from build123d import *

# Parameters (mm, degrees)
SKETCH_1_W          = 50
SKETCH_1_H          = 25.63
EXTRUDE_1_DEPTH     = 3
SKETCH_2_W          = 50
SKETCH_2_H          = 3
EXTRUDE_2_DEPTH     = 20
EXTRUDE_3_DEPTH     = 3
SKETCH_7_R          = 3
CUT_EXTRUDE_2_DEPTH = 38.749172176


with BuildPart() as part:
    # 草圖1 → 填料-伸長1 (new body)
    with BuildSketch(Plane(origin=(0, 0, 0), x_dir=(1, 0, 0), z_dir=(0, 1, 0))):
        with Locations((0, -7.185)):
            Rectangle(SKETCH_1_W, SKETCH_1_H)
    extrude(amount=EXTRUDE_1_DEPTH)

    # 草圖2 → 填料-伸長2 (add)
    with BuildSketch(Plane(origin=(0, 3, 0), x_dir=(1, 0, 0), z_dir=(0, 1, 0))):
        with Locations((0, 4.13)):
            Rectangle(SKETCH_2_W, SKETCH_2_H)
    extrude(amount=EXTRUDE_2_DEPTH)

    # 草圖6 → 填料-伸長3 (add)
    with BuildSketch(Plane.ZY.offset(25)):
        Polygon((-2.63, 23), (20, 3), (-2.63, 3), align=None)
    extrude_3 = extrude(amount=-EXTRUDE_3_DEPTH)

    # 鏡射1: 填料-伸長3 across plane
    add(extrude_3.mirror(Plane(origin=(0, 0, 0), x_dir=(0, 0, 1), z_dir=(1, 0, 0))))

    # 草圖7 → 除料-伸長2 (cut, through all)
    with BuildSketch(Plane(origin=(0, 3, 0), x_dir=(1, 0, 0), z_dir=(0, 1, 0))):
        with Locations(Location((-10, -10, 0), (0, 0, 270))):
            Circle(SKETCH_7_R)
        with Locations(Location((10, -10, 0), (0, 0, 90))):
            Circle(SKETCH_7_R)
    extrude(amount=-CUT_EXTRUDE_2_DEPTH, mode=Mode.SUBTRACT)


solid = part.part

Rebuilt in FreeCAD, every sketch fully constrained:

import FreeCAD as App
import Part
import Sketcher
from FreeCAD import Vector
Q = App.Units.Quantity

doc = App.newDocument("Part")
body = doc.addObject("PartDesign::Body", "Body")

# Sketch on XZ plane
sketch1 = body.newObject("Sketcher::SketchObject", "Sketch")
sketch1.AttachmentSupport = (doc.getObject("XZ_Plane"), [""])
sketch1.MapMode = "FlatFace"
sketch1.addGeometry(Part.LineSegment(Vector(-25, -6, 0), Vector(-25, 20, 0)), False)
sketch1.addGeometry(Part.LineSegment(Vector(-25, 20, 0), Vector(25, 20, 0)), False)
sketch1.addGeometry(Part.LineSegment(Vector(25, 20, 0), Vector(25, -6, 0)), False)
sketch1.addGeometry(Part.LineSegment(Vector(25, -6, 0), Vector(-25, -6, 0)), False)
sketch1.addConstraint(Sketcher.Constraint("Coincident", 0, 2, 1, 1))
sketch1.addConstraint(Sketcher.Constraint("Coincident", 1, 2, 2, 1))
sketch1.addConstraint(Sketcher.Constraint("Coincident", 2, 2, 3, 1))
sketch1.addConstraint(Sketcher.Constraint("Coincident", 3, 2, 0, 1))
sketch1.addConstraint(Sketcher.Constraint("Vertical", 0))
sketch1.addConstraint(Sketcher.Constraint("Horizontal", 1))
sketch1.addConstraint(Sketcher.Constraint("Vertical", 2))
sketch1.addConstraint(Sketcher.Constraint("Horizontal", 3))
sketch1.addConstraint(Sketcher.Constraint("DistanceX", 1, 1, 1, 2, Q("50 mm")))
sketch1.addConstraint(Sketcher.Constraint("DistanceX", 0, 2, -1, 1, Q("25 mm")))
sketch1.addConstraint(Sketcher.Constraint("DistanceY", -1, 1, 0, 2, Q("20 mm")))
sketch1.addConstraint(Sketcher.Constraint("DistanceY", 0, 1, 0, 2, Q("25.63 mm")))
pad1 = body.newObject("PartDesign::Pad", "Pad")
pad1.Profile = sketch1
pad1.Length = 3
pad1.Reversed = True

# Sketch on XZ plane
sketch2 = body.newObject("Sketcher::SketchObject", "Sketch001")
sketch2.AttachmentSupport = (doc.getObject("XZ_Plane"), [""])
sketch2.MapMode = "FlatFace"
sketch2.AttachmentOffset = App.Placement(Vector(0, 0, -3), App.Rotation())
sketch2.addGeometry(Part.LineSegment(Vector(-25, -5.6, 0), Vector(-25, -2.6, 0)), False)
sketch2.addGeometry(Part.LineSegment(Vector(-25, -2.6, 0), Vector(25, -2.6, 0)), False)
sketch2.addGeometry(Part.LineSegment(Vector(25, -2.6, 0), Vector(25, -5.6, 0)), False)
sketch2.addGeometry(Part.LineSegment(Vector(25, -5.6, 0), Vector(-25, -5.6, 0)), False)
sketch2.addConstraint(Sketcher.Constraint("Coincident", 0, 2, 1, 1))
sketch2.addConstraint(Sketcher.Constraint("Coincident", 1, 2, 2, 1))
sketch2.addConstraint(Sketcher.Constraint("Coincident", 2, 2, 3, 1))
sketch2.addConstraint(Sketcher.Constraint("Coincident", 3, 2, 0, 1))
sketch2.addConstraint(Sketcher.Constraint("Vertical", 0))
sketch2.addConstraint(Sketcher.Constraint("Horizontal", 1))
sketch2.addConstraint(Sketcher.Constraint("Vertical", 2))
sketch2.addConstraint(Sketcher.Constraint("Horizontal", 3))
sketch2.addConstraint(Sketcher.Constraint("DistanceX", 1, 1, 1, 2, Q("50 mm")))
sketch2.addConstraint(Sketcher.Constraint("DistanceY", 0, 1, 0, 2, Q("3 mm")))
sketch2.addConstraint(Sketcher.Constraint("DistanceX", 0, 2, -1, 1, Q("25 mm")))
sketch2.addConstraint(Sketcher.Constraint("DistanceY", 0, 2, -1, 1, Q("2.63 mm")))
pad2 = body.newObject("PartDesign::Pad", "Pad001")
pad2.Profile = sketch2
pad2.Length = 20
pad2.Reversed = True

# Sketch on YZ plane
sketch3 = body.newObject("Sketcher::SketchObject", "Sketch002")
sketch3.AttachmentSupport = (doc.getObject("YZ_Plane"), [""])
sketch3.MapMode = "FlatFace"
sketch3.AttachmentOffset = App.Placement(Vector(0, 0, -25), App.Rotation())
sketch3.addGeometry(Part.LineSegment(Vector(3, 20, 0), Vector(23, -3, 0)), False)
sketch3.addGeometry(Part.LineSegment(Vector(23, -3, 0), Vector(3, -3, 0)), False)
sketch3.addGeometry(Part.LineSegment(Vector(3, -3, 0), Vector(3, 20, 0)), False)
sketch3.addConstraint(Sketcher.Constraint("Coincident", 0, 2, 1, 1))
sketch3.addConstraint(Sketcher.Constraint("Coincident", 1, 2, 2, 1))
sketch3.addConstraint(Sketcher.Constraint("Coincident", 2, 2, 0, 1))
sketch3.addConstraint(Sketcher.Constraint("Horizontal", 1))
sketch3.addConstraint(Sketcher.Constraint("Vertical", 2))
sketch3.addConstraint(Sketcher.Constraint("DistanceX", 1, 2, 1, 1, Q("20 mm")))
sketch3.addConstraint(Sketcher.Constraint("DistanceX", -1, 1, 0, 2, Q("23 mm")))
sketch3.addConstraint(Sketcher.Constraint("DistanceY", -1, 1, 2, 2, Q("20 mm")))
sketch3.addConstraint(Sketcher.Constraint("DistanceY", 2, 1, 2, 2, Q("22.63 mm")))
pad3 = body.newObject("PartDesign::Pad", "Pad002")
pad3.Profile = sketch3
pad3.Length = 3
doc.recompute()

mirrored = body.newObject("PartDesign::Mirrored", "Mirrored")
mirrored.Originals = [pad3]
mirrored.MirrorPlane = (doc.getObject("YZ_Plane"), [""])
body.Tip = mirrored

# Sketch on XZ plane
sketch4 = body.newObject("Sketcher::SketchObject", "Sketch003")
sketch4.AttachmentSupport = (doc.getObject("XZ_Plane"), [""])
sketch4.MapMode = "FlatFace"
sketch4.AttachmentOffset = App.Placement(Vector(0, 0, -3), App.Rotation())
sketch4.addGeometry(Part.Circle(Vector(-10, 10, 0), Vector(0, 0, 1), 3), False)
sketch4.addGeometry(Part.Circle(Vector(10, 10, 0), Vector(0, 0, 1), 3), False)
sketch4.addConstraint(Sketcher.Constraint("Equal", 0, 1))
sketch4.addConstraint(Sketcher.Constraint("Symmetric", 0, 3, 1, 3, -2))
sketch4.addConstraint(Sketcher.Constraint("Diameter", 0, Q("6 mm")))
sketch4.addConstraint(Sketcher.Constraint("DistanceX", 0, 3, -1, 1, Q("10 mm")))
sketch4.addConstraint(Sketcher.Constraint("DistanceY", -1, 1, 0, 3, Q("10 mm")))
pocket1 = body.newObject("PartDesign::Pocket", "Pocket")
pocket1.Profile = sketch4
pocket1.Type = "ThroughAll"
pocket1.Reversed = True

doc.recompute()
